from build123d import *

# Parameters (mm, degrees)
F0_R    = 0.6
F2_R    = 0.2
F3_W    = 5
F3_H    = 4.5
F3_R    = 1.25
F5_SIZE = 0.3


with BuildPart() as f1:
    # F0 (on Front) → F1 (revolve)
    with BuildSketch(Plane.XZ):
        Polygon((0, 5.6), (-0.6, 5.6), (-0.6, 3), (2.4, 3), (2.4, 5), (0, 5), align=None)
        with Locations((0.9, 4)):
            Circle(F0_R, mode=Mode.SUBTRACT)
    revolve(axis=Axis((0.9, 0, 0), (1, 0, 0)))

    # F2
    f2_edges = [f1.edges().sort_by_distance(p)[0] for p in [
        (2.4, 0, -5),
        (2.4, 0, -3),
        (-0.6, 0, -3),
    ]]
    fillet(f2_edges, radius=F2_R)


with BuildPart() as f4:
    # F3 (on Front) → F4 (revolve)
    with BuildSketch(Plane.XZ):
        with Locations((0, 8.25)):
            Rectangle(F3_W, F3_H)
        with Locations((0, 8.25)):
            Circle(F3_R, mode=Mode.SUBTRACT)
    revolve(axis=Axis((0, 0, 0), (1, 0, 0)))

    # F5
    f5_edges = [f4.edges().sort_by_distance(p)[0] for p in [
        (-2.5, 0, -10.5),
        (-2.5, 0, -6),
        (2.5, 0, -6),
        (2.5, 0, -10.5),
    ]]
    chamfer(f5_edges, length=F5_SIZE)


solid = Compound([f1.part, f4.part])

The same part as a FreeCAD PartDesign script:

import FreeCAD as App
import Part
import Sketcher


def edges_at(feature, points):
    """Names of the edges that pass closest to the given points."""
    edges = feature.Shape.Edges
    near = lambda p: min(range(len(edges)), key=lambda i: edges[i].distToShape(Part.Vertex(*p))[0])
    return sorted({f"Edge{near(p) + 1}" for p in points})


def add_polygon(sketch, points):
    """Adds a closed chain of lines whose ends are joined by coincident constraints."""
    first, n = sketch.GeometryCount, len(points)
    for a, b in zip(points, points[1:] + points[:1]):
        sketch.addGeometry(Part.LineSegment(App.Vector(*a, 0), App.Vector(*b, 0)), False)
    for i in range(n):
        sketch.addConstraint(Sketcher.Constraint("Coincident", first + i, 2, first + (i + 1) % n, 1))

doc = App.newDocument("Part")
body = doc.addObject("PartDesign::Body", "Body")

# Sketch on XZ plane
sketch1 = doc.addObject("Sketcher::SketchObject", "Sketch")
body.addObject(sketch1)
sketch1.AttachmentSupport = (doc.XZ_Plane, [""])
sketch1.MapMode = "FlatFace"
add_polygon(sketch1, [(0, 5.6), (-0.6, 5.6), (-0.6, 3), (2.4, 3), (2.4, 5), (0, 5)])  # lines 0-5
sketch1.addGeometry(Part.Circle(App.Vector(0.9, 4, 0), App.Vector(0, 0, 1), 0.6), False)  # 6
sketch1.addConstraint([
    Sketcher.Constraint("Horizontal", 0),
    Sketcher.Constraint("Vertical", 1),
    Sketcher.Constraint("Horizontal", 2),
    Sketcher.Constraint("Vertical", 3),
    Sketcher.Constraint("Horizontal", 4),
    Sketcher.Constraint("Vertical", 5),
    Sketcher.Constraint("PointOnObject", 4, 2, -2),
    Sketcher.Constraint("Equal", 0, 5),
    Sketcher.Constraint("Diameter", 6, 1.2),
    Sketcher.Constraint("DistanceX", 2, 1, 2, 2, 3.0),
    Sketcher.Constraint("DistanceY", 3, 1, 3, 2, 2.0),
    Sketcher.Constraint("DistanceX", 0, 2, 0, 1, 0.6),
    Sketcher.Constraint("DistanceY", -1, 1, 6, 3, 4.0),
    Sketcher.Constraint("DistanceY", -1, 1, 1, 2, 3.0),
    Sketcher.Constraint("DistanceX", -1, 1, 6, 3, 0.9),
])
revolution = doc.addObject("PartDesign::Revolution", "Revolution")
body.addObject(revolution)
revolution.Profile = sketch1
revolution.ReferenceAxis = (sketch1, ["H_Axis"])
revolution.Angle = 360
doc.recompute()

fillet = doc.addObject("PartDesign::Fillet", "Fillet")
body.addObject(fillet)
fillet.Base = (revolution, edges_at(revolution, [(2.4, 0, -5), (2.4, 0, -3), (-0.6, 0, -3)]))
fillet.Radius = 0.2
body2 = doc.addObject("PartDesign::Body", "Body001")

# Sketch on XZ plane
sketch2 = doc.addObject("Sketcher::SketchObject", "Sketch001")
body2.addObject(sketch2)
sketch2.AttachmentSupport = (doc.getObject("XZ_Plane001"), [""])
sketch2.MapMode = "FlatFace"
add_polygon(sketch2, [(-2.5, 10.5), (-2.5, 6), (2.5, 6), (2.5, 10.5)])  # lines 0-3
sketch2.addGeometry(Part.Circle(App.Vector(0, 8.25, 0), App.Vector(0, 0, 1), 1.25), False)  # 4
sketch2.addConstraint([
    Sketcher.Constraint("Vertical", 0),
    Sketcher.Constraint("Horizontal", 1),
    Sketcher.Constraint("Vertical", 2),
    Sketcher.Constraint("Horizontal", 3),
    Sketcher.Constraint("PointOnObject", 4, 3, -2),
    Sketcher.Constraint("Diameter", 4, 2.5),
    Sketcher.Constraint("DistanceX", 1, 1, 1, 2, 5.0),
    Sketcher.Constraint("DistanceY", 0, 2, 0, 1, 4.5),
    Sketcher.Constraint("DistanceY", -1, 1, 0, 2, 6.0),
    Sketcher.Constraint("DistanceX", 0, 2, -1, 1, 2.5),
    Sketcher.Constraint("DistanceY", -1, 1, 4, 3, 8.25),
])
revolution2 = doc.addObject("PartDesign::Revolution", "Revolution001")
body2.addObject(revolution2)
revolution2.Profile = sketch2
revolution2.ReferenceAxis = (sketch2, ["H_Axis"])
revolution2.Angle = 360
doc.recompute()

chamfer = doc.addObject("PartDesign::Chamfer", "Chamfer")
body2.addObject(chamfer)
chamfer.Base = (revolution2, edges_at(revolution2, [
    (-2.5, 0, -10.5),
    (-2.5, 0, -6),
    (2.5, 0, -6),
    (2.5, 0, -10.5),
]))
chamfer.Size = 0.3

doc.recompute()
